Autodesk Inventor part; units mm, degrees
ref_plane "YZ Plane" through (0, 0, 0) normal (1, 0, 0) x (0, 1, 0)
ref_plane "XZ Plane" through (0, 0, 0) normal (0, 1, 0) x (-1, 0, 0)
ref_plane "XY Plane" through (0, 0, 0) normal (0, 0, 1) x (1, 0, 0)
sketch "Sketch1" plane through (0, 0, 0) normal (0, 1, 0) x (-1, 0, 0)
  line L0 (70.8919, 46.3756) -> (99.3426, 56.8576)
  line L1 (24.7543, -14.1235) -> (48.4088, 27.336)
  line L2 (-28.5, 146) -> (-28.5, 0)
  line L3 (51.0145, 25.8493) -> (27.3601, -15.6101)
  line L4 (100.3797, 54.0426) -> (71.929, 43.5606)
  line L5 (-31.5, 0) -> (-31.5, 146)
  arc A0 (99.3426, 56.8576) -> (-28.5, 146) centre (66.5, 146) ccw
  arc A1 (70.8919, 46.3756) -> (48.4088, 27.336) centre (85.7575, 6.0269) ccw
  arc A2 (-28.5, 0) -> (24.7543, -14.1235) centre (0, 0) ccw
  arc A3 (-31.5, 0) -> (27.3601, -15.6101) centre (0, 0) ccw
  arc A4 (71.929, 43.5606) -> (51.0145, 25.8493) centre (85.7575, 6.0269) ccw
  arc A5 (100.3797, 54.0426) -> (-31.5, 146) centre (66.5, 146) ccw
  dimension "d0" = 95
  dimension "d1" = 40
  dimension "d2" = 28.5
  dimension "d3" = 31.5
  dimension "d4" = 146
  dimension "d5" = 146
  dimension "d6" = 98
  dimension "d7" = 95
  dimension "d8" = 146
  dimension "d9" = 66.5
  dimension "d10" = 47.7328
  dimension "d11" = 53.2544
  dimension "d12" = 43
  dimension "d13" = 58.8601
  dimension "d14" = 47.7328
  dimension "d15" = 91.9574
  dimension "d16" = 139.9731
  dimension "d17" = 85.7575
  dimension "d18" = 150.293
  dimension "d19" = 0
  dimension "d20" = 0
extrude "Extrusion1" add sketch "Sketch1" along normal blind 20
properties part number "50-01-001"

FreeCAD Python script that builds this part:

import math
import FreeCAD as App
import Part
import Sketcher
from FreeCAD import Vector

doc = App.newDocument("Part")
params = doc.addObject("Spreadsheet::Sheet", "Params")
for row, (alias, value) in enumerate([
    ("sketch1_radius", "40 mm"),
    ("sketch1_radius2", "98 mm"),
    ("sketch1_radius3", "43 mm"),
    ("sketch1_radius4", "31.5 mm"),
    ("sketch1_height", "146 mm"),
    ("pad1_length", "20 mm"),
], start=1):
    params.set(f"A{row}", alias)
    params.set(f"B{row}", "=" + value)
    params.setAlias(f"B{row}", alias)

body = doc.addObject("PartDesign::Body", "Body")

sketch1 = body.newObject("Sketcher::SketchObject", "Sketch")
sketch1.AttachmentSupport = (doc.getObject("XZ_Plane"), [""])
sketch1.MapMode = "FlatFace"
sketch1.addGeometry([
    Part.LineSegment(Vector(-27.3601, -15.6101, 0), Vector(-51.0145, 25.8493, 0)),
    Part.ArcOfCircle(Part.Circle(Vector(-85.7575, 6.0269, 0), Vector(0, 0, 1), 40.000076), math.radians(29.706647), math.radians(69.774744)),
    Part.LineSegment(Vector(-71.929, 43.5606, 0), Vector(-100.3797, 54.0426, 0)),
    Part.ArcOfCircle(Part.Circle(Vector(-66.5, 146, 0), Vector(0, 0, 1), 97.999987), math.radians(0), math.radians(249.77478)),
    Part.LineSegment(Vector(31.5, 146, 0), Vector(31.5, 0, 0)),
    Part.ArcOfCircle(Part.Circle(Vector(0, 0, 0), Vector(0, 0, 1), 31.5), math.radians(-150.293404), math.radians(0)),
    Part.LineSegment(Vector(-99.3426, 56.8576, 0), Vector(-70.8919, 46.3756, 0)),
    Part.ArcOfCircle(Part.Circle(Vector(-85.7575, 6.0269, 0), Vector(0, 0, 1), 43.000043), math.radians(29.706687), math.radians(69.774779)),
    Part.LineSegment(Vector(-48.4088, 27.336, 0), Vector(-24.7543, -14.1235, 0)),
    Part.ArcOfCircle(Part.Circle(Vector(0, 0, 0), Vector(0, 0, 1), 28.5), math.radians(-150.293196), math.radians(0)),
    Part.LineSegment(Vector(28.5, 0, 0), Vector(28.5, 146, 0)),
    Part.ArcOfCircle(Part.Circle(Vector(-66.5, 146, 0), Vector(0, 0, 1), 95.00002), math.radians(0), math.radians(249.774765)),
], False)
sketch1.addConstraint([
    Sketcher.Constraint("Tangent", 0, 2, 1, 1),
    Sketcher.Constraint("Tangent", 1, 2, 2, 1),
    Sketcher.Constraint("Tangent", 2, 2, 3, 2),
    Sketcher.Constraint("Tangent", 3, 1, 4, 1),
    Sketcher.Constraint("Tangent", 4, 2, 5, 2),
    Sketcher.Constraint("Tangent", 5, 1, 0, 1),
    Sketcher.Constraint("Tangent", 6, 2, 7, 2),
    Sketcher.Constraint("Tangent", 7, 1, 8, 1),
    Sketcher.Constraint("Tangent", 8, 2, 9, 1),
    Sketcher.Constraint("Tangent", 9, 2, 10, 1),
    Sketcher.Constraint("Tangent", 10, 2, 11, 1),
    Sketcher.Constraint("Tangent", 11, 2, 6, 1),
    Sketcher.Constraint("Vertical", 4),
    Sketcher.Constraint("Vertical", 10),
    Sketcher.Constraint("Coincident", 5, 3, -1, 1),
    Sketcher.Constraint("Coincident", 9, 3, -1, 1),
    Sketcher.Constraint("Coincident", 7, 3, 1, 3),
    Sketcher.Constraint("Coincident", 11, 3, 3, 3),
    Sketcher.Constraint("Parallel", 2, 6),
    Sketcher.Constraint("Radius", 1, 40.0),
    Sketcher.Constraint("Radius", 3, 98.0),
    Sketcher.Constraint("Radius", 7, 43.0),
    Sketcher.Constraint("Radius", 5, 31.5),
    Sketcher.Constraint("DistanceY", 4, 2, 4, 1, 146.0),
    Sketcher.Constraint("DistanceX", 5, 1, 4, 2, 58.86),
    Sketcher.Constraint("DistanceY", 1, 3, 3, 3, 139.973),
])
sketch1.setExpression("Constraints[19]", "Params.sketch1_radius")
sketch1.setExpression("Constraints[20]", "Params.sketch1_radius2")
sketch1.setExpression("Constraints[21]", "Params.sketch1_radius3")
sketch1.setExpression("Constraints[22]", "Params.sketch1_radius4")
sketch1.setExpression("Constraints[23]", "Params.sketch1_height")
pad1 = body.newObject("PartDesign::Pad", "Pad")
pad1.Profile = sketch1
pad1.setExpression("Length", "Params.pad1_length")
pad1.Reversed = True

doc.recompute()
